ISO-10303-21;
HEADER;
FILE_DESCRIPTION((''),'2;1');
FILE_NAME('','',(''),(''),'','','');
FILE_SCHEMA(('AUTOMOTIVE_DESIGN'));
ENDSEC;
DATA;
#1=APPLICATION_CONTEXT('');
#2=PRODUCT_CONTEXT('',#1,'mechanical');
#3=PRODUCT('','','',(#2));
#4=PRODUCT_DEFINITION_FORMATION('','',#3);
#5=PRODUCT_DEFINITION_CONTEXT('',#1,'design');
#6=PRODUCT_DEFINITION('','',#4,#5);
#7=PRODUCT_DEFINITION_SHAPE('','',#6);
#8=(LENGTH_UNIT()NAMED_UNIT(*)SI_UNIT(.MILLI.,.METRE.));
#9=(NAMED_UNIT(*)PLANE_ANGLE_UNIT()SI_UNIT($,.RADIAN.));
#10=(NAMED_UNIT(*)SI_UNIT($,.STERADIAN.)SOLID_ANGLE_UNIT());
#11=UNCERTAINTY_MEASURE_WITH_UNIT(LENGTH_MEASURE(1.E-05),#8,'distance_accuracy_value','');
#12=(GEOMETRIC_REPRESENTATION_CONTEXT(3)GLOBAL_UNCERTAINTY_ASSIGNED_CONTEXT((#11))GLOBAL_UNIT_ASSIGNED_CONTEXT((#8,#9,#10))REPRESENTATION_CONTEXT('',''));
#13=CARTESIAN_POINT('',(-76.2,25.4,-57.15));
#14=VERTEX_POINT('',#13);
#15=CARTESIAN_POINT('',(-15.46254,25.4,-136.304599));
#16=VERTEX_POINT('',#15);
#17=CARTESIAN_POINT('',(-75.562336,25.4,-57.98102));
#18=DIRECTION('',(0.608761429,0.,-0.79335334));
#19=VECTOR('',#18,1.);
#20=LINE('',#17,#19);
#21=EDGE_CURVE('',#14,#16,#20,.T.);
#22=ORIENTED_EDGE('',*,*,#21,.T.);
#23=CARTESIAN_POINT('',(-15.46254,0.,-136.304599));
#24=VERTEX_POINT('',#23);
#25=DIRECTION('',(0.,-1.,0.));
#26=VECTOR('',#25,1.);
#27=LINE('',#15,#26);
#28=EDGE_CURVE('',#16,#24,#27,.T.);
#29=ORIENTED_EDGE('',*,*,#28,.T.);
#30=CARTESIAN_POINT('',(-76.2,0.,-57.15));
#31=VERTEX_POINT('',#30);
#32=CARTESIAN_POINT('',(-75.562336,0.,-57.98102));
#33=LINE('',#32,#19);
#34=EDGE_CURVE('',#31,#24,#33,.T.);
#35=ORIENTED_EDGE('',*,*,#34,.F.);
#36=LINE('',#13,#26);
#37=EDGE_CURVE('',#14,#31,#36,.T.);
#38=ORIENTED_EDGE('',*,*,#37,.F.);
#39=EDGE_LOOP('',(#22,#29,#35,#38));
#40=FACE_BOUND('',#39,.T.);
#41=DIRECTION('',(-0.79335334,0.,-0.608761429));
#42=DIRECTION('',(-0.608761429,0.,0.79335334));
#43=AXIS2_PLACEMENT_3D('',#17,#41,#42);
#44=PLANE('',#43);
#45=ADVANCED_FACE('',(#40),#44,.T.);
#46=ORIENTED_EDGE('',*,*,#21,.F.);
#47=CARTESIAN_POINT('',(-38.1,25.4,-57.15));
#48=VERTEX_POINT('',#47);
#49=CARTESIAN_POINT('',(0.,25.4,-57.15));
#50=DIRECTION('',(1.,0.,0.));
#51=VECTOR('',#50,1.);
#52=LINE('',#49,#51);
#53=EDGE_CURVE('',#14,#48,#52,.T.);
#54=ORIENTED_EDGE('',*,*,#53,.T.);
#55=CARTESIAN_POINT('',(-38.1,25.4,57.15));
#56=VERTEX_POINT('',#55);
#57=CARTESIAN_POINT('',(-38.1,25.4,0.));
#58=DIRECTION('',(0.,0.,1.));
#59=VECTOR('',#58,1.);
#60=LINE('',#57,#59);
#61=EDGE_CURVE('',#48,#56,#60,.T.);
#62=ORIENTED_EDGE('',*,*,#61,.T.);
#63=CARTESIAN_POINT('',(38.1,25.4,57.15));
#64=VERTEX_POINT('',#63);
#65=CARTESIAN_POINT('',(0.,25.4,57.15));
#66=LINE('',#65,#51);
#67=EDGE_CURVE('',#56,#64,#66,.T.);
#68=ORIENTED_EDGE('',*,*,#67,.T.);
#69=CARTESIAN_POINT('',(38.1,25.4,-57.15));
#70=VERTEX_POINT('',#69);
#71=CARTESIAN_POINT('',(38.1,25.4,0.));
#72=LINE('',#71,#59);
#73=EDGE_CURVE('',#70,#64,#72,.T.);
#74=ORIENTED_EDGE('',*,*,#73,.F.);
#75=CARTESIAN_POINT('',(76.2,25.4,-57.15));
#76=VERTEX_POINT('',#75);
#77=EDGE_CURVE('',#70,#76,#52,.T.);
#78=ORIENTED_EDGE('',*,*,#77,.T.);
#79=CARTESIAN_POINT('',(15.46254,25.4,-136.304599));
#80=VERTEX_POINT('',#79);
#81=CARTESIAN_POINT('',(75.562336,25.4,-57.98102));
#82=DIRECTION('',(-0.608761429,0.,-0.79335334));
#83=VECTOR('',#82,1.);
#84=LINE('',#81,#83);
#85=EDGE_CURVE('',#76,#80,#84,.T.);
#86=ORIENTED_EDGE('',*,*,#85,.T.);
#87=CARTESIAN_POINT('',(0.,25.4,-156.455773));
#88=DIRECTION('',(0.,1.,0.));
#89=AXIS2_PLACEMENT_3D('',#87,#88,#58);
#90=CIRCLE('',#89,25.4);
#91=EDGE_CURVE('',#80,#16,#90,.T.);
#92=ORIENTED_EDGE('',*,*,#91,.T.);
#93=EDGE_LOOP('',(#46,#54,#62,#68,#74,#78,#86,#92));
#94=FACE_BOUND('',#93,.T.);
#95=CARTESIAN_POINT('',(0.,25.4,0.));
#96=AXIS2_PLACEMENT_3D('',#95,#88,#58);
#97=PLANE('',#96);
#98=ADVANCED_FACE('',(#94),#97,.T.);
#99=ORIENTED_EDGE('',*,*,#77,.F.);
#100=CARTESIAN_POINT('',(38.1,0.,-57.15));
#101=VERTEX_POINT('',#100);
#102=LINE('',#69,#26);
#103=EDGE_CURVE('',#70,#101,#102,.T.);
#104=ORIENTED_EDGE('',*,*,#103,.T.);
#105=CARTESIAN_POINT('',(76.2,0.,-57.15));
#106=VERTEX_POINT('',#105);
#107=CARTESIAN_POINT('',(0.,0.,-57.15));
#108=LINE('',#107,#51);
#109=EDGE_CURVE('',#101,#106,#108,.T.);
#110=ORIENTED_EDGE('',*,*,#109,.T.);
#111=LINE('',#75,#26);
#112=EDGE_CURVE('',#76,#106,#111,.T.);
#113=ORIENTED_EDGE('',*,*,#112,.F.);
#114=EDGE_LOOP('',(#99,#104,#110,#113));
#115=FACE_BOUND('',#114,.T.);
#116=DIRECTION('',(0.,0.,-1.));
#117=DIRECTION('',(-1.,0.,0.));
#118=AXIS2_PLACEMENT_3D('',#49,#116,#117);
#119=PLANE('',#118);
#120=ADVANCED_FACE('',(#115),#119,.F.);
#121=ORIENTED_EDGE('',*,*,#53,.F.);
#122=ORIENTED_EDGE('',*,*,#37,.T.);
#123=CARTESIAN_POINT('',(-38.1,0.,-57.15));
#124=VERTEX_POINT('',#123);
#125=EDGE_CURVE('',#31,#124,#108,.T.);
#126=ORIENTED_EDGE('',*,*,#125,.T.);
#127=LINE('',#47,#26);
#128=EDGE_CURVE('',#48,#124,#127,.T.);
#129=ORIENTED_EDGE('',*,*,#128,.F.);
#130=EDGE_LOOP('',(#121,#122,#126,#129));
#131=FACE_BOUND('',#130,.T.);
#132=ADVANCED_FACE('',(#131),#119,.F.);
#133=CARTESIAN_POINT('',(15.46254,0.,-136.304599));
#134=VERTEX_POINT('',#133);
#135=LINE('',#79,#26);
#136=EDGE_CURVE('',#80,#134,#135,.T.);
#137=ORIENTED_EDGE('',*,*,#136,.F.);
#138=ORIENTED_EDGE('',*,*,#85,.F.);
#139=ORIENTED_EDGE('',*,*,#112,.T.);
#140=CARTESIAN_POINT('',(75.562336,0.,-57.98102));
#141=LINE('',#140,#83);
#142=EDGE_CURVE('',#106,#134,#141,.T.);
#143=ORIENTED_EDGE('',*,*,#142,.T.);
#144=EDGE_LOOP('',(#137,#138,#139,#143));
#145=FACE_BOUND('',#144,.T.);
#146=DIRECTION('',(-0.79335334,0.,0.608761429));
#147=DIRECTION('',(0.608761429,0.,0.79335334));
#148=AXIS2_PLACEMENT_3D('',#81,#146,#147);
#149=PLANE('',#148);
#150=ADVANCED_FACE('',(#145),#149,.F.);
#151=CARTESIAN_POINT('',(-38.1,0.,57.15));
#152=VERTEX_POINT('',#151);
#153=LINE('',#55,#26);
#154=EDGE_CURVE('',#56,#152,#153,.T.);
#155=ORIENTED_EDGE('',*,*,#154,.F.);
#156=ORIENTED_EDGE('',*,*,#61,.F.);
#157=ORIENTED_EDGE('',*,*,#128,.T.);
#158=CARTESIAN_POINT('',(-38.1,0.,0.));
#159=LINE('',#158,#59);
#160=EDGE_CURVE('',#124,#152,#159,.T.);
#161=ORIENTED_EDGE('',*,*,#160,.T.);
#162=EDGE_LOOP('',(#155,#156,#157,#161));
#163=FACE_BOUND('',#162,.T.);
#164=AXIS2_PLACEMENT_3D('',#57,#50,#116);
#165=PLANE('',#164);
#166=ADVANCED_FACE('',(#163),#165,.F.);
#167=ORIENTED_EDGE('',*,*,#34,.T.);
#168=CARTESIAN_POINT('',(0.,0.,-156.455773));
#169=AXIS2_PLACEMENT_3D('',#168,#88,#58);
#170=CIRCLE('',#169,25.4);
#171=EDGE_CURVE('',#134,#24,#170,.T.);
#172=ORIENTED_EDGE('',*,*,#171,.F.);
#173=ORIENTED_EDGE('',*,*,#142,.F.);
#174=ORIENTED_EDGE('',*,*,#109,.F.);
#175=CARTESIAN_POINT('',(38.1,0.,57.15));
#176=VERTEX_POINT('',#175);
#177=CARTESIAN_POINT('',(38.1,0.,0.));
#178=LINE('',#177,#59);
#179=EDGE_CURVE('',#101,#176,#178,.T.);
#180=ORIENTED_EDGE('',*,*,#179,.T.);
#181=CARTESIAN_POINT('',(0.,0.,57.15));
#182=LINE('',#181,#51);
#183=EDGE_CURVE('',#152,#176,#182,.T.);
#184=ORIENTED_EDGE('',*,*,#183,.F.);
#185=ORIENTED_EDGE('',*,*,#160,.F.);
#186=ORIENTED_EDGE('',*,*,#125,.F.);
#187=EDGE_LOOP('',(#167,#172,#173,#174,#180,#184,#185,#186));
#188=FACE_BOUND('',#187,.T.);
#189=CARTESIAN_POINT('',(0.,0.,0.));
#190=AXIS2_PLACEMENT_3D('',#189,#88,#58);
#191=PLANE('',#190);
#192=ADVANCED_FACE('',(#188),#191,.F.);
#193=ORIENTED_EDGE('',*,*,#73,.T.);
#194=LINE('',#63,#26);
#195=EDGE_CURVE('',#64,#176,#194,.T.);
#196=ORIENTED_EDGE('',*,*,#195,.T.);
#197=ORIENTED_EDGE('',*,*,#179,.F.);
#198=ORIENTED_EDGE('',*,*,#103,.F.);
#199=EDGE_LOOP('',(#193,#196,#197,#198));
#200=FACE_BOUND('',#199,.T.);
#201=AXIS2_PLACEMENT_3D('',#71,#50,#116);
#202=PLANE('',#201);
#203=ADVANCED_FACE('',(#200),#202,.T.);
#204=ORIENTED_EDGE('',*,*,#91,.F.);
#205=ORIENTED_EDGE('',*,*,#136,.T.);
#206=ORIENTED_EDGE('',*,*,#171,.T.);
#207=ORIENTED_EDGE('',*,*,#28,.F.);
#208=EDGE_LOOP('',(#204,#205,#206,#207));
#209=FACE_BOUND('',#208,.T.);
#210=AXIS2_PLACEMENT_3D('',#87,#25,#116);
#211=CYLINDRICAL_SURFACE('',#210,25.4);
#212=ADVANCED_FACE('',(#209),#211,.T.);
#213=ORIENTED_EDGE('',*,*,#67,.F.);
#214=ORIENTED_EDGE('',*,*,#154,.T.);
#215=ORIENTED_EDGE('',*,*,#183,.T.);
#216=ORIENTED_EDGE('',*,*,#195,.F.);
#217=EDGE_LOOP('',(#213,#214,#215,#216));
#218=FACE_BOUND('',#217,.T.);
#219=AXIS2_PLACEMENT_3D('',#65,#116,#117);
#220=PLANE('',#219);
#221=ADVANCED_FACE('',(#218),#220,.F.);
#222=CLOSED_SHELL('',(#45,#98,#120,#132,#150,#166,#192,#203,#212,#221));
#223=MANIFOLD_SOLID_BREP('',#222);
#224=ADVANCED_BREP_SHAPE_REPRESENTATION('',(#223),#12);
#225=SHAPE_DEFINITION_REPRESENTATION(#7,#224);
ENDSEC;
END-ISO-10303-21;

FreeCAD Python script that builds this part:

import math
import FreeCAD as App
import Part
import Sketcher
Q = App.Units.Quantity

doc = App.newDocument("Part")
body = doc.addObject("PartDesign::Body", "Body")

sketch1 = doc.addObject("Sketcher::SketchObject", "Sketch")
body.addObject(sketch1)
sketch1.AttachmentSupport = (doc.XZ_Plane, [""])
sketch1.MapMode = "FlatFace"
sketch1.addGeometry(Part.LineSegment(App.Vector(38.1, -57.15, 0), App.Vector(76.2, -57.15, 0)), False)
sketch1.addGeometry(Part.LineSegment(App.Vector(76.2, -57.15, 0), App.Vector(15.46254, -136.304599, 0)), False)
sketch1.addGeometry(Part.ArcOfCircle(Part.Circle(App.Vector(0, -156.455773, 0), App.Vector(0, 0, 1), 25.4), math.radians(0), math.radians(52.5)), False)
sketch1.addGeometry(Part.ArcOfCircle(Part.Circle(App.Vector(0, -156.455773, 0), App.Vector(0, 0, 1), 25.4), math.radians(127.5), math.radians(360)), False)
sketch1.addGeometry(Part.LineSegment(App.Vector(-15.46254, -136.304599, 0), App.Vector(-76.2, -57.15, 0)), False)
sketch1.addGeometry(Part.LineSegment(App.Vector(-76.2, -57.15, 0), App.Vector(-38.1, -57.15, 0)), False)
sketch1.addGeometry(Part.LineSegment(App.Vector(-38.1, -57.15, 0), App.Vector(-38.1, 57.15, 0)), False)
sketch1.addGeometry(Part.LineSegment(App.Vector(-38.1, 57.15, 0), App.Vector(38.1, 57.15, 0)), False)
sketch1.addGeometry(Part.LineSegment(App.Vector(38.1, 57.15, 0), App.Vector(38.1, -57.15, 0)), False)
sketch1.addConstraint(Sketcher.Constraint("Coincident", 0, 2, 1, 1))
sketch1.addConstraint(Sketcher.Constraint("Coincident", 1, 2, 2, 2))
sketch1.addConstraint(Sketcher.Constraint("Tangent", 2, 1, 3, 2))
sketch1.addConstraint(Sketcher.Constraint("Coincident", 3, 1, 4, 1))
sketch1.addConstraint(Sketcher.Constraint("Coincident", 4, 2, 5, 1))
sketch1.addConstraint(Sketcher.Constraint("Coincident", 5, 2, 6, 1))
sketch1.addConstraint(Sketcher.Constraint("Coincident", 6, 2, 7, 1))
sketch1.addConstraint(Sketcher.Constraint("Coincident", 7, 2, 8, 1))
sketch1.addConstraint(Sketcher.Constraint("Coincident", 8, 2, 0, 1))
sketch1.addConstraint(Sketcher.Constraint("Horizontal", 0))
sketch1.addConstraint(Sketcher.Constraint("Horizontal", 5))
sketch1.addConstraint(Sketcher.Constraint("Vertical", 6))
sketch1.addConstraint(Sketcher.Constraint("Horizontal", 7))
sketch1.addConstraint(Sketcher.Constraint("Vertical", 8))
sketch1.addConstraint(Sketcher.Constraint("Equal", 2, 3))
sketch1.addConstraint(Sketcher.Constraint("Symmetric", 5, 2, 7, 2, -1, 1))
sketch1.addConstraint(Sketcher.Constraint("Symmetric", 1, 2, 3, 1, -2))
sketch1.addConstraint(Sketcher.Constraint("Symmetric", 0, 2, 4, 2, -2))
sketch1.addConstraint(Sketcher.Constraint("Horizontal", 3, 3, 2, 1))
sketch1.addConstraint(Sketcher.Constraint("Radius", 2, Q("1 in")))
sketch1.addConstraint(Sketcher.Constraint("DistanceX", 7, 1, 7, 2, Q("3 in")))
sketch1.addConstraint(Sketcher.Constraint("DistanceX", 0, 1, 0, 2, Q("1.5 in")))
sketch1.addConstraint(Sketcher.Constraint("DistanceY", 6, 1, 6, 2, Q("4.5 in")))
sketch1.addConstraint(Sketcher.Constraint("Angle", 1, Q("-127.5 deg")))
sketch1.addConstraint(Sketcher.Constraint("DistanceY", 1, 2, -1, 1, 136.304599))
pad1 = doc.addObject("PartDesign::Pad", "Pad")
body.addObject(pad1)
pad1.Profile = sketch1
pad1.Length = Q("1 in")
pad1.Reversed = True

doc.recompute()
